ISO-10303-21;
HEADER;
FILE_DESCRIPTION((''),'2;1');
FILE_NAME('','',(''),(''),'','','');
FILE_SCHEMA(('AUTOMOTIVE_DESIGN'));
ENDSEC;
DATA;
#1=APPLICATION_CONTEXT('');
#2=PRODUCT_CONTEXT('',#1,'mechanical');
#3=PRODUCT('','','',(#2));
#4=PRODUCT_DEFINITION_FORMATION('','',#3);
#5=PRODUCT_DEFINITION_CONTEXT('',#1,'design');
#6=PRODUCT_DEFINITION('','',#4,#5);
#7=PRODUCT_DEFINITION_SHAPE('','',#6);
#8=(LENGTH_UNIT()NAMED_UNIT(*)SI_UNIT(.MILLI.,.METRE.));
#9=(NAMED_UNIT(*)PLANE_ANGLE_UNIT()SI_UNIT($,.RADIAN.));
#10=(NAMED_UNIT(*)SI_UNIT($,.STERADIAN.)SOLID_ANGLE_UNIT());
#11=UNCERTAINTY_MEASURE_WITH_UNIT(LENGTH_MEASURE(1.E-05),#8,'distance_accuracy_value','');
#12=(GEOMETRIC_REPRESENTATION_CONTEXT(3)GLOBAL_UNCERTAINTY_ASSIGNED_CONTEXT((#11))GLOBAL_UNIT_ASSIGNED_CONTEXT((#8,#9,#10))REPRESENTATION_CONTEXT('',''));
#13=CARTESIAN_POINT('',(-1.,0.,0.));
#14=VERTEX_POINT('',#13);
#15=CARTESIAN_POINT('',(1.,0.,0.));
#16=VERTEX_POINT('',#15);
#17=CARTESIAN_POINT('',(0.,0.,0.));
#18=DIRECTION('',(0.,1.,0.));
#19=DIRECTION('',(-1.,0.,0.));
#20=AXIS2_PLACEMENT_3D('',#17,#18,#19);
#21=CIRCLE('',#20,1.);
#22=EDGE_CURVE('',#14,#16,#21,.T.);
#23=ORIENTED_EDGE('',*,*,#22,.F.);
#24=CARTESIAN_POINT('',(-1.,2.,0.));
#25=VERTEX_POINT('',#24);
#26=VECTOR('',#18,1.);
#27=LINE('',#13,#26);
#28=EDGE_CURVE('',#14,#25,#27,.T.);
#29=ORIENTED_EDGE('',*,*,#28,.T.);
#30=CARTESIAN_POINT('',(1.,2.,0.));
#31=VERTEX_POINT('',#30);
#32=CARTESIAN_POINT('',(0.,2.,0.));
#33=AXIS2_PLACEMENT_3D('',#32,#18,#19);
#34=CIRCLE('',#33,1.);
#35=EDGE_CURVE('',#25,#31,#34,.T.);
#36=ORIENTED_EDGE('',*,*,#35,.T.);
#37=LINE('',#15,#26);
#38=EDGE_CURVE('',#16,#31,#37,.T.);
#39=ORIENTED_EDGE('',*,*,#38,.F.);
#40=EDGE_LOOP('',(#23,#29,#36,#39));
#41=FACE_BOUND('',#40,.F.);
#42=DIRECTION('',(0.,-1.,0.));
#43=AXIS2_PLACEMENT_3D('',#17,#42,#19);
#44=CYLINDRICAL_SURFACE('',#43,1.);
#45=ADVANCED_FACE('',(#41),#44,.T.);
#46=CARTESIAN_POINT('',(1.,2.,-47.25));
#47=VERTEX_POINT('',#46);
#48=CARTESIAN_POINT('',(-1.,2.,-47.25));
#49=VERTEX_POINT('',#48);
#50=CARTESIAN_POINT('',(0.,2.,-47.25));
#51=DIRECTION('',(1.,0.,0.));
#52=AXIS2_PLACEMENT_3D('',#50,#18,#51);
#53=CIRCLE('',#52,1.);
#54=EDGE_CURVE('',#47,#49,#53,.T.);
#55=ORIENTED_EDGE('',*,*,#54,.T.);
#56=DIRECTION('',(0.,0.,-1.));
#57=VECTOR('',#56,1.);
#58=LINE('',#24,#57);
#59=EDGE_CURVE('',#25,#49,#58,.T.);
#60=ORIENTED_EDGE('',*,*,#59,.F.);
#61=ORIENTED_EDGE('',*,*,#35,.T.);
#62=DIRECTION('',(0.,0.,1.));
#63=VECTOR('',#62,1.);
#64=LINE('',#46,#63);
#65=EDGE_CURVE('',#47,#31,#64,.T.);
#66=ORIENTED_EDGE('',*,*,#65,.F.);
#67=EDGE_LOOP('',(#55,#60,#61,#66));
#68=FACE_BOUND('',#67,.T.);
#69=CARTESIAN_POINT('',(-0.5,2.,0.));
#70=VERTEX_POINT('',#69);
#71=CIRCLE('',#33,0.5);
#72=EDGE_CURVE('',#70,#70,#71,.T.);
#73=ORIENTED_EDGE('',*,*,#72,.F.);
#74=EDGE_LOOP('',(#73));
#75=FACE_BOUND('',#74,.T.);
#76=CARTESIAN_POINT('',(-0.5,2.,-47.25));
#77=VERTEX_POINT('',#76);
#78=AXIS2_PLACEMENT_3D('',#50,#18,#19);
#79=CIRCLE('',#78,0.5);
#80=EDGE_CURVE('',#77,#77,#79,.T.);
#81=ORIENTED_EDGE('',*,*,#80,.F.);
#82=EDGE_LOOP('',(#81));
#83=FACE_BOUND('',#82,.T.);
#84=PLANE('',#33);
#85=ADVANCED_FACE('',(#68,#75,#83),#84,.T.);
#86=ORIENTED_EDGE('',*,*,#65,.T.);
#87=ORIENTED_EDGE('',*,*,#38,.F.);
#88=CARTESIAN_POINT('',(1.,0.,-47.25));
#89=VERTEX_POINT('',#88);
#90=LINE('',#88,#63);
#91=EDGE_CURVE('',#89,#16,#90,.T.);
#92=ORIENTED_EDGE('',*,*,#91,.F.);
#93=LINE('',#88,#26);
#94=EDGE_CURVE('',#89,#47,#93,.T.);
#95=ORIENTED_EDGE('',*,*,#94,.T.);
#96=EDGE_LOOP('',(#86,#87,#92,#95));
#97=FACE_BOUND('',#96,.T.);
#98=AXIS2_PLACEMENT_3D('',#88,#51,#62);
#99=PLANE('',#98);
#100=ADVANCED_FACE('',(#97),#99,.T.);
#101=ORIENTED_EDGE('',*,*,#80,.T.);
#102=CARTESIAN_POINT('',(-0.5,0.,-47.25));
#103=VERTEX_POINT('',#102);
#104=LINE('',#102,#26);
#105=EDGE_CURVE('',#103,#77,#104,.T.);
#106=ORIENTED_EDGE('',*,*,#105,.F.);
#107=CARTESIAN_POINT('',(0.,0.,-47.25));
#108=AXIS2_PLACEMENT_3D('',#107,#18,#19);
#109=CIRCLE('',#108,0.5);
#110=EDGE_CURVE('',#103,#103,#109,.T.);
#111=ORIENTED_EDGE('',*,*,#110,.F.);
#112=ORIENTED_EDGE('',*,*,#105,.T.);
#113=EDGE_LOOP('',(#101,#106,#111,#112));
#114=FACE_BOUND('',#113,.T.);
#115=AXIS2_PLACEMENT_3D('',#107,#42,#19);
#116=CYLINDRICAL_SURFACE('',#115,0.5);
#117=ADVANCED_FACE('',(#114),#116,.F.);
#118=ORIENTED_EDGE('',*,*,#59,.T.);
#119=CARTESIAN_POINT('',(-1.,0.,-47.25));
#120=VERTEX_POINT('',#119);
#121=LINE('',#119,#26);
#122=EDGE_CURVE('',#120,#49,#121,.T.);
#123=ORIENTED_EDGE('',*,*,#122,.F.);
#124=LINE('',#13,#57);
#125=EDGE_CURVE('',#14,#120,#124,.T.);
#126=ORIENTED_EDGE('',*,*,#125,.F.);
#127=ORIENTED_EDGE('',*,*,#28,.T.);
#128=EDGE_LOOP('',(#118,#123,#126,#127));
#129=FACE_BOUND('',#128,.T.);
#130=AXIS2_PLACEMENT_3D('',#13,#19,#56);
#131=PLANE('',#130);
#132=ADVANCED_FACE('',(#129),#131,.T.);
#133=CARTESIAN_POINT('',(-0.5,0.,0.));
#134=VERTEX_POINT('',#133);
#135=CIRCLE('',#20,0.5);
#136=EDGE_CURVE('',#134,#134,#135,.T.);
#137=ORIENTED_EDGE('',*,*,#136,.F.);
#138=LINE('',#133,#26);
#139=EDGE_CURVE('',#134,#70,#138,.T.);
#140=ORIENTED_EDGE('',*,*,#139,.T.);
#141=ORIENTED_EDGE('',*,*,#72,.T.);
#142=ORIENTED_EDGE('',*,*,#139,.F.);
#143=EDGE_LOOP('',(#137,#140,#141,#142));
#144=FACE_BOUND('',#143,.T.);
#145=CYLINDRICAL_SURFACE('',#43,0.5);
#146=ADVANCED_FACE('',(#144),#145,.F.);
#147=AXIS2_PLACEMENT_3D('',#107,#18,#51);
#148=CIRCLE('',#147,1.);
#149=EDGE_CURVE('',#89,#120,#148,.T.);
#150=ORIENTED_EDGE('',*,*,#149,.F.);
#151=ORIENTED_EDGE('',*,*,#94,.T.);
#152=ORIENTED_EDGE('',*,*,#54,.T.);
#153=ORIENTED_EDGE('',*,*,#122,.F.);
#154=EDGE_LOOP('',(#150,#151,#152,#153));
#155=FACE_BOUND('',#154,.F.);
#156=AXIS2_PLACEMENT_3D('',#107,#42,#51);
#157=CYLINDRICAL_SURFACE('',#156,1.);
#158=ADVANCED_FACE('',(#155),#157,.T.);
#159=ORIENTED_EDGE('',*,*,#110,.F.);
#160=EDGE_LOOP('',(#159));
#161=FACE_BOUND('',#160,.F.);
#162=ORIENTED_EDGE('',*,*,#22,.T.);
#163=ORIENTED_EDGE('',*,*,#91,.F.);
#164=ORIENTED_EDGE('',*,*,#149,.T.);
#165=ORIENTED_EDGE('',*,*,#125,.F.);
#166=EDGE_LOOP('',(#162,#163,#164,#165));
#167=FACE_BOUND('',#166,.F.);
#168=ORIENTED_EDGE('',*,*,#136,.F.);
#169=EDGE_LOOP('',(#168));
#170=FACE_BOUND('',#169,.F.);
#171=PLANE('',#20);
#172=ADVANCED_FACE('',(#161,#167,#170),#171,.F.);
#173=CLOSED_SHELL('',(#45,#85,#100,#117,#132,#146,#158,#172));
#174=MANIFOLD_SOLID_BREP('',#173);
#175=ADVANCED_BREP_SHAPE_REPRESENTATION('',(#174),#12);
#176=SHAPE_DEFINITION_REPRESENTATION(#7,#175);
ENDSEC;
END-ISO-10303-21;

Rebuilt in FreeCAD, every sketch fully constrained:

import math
import FreeCAD as App
import Part
import Sketcher

doc = App.newDocument("Part")
body = doc.addObject("PartDesign::Body", "Body")

sketch1 = doc.addObject("Sketcher::SketchObject", "Sketch")
body.addObject(sketch1)
sketch1.AttachmentSupport = (doc.XZ_Plane, [""])
sketch1.MapMode = "FlatFace"
sketch1.addGeometry([
    Part.LineSegment(App.Vector(-1, -47.25, 0), App.Vector(-1, 0, 0)),
    Part.ArcOfCircle(Part.Circle(App.Vector(0, 0, 0), App.Vector(0, 0, 1), 1), math.radians(0), math.radians(180)),
    Part.LineSegment(App.Vector(1, 0, 0), App.Vector(1, -47.25, 0)),
    Part.ArcOfCircle(Part.Circle(App.Vector(0, -47.25, 0), App.Vector(0, 0, 1), 1), math.radians(180), math.radians(360)),
    Part.Circle(App.Vector(0, -47.25, 0), App.Vector(0, 0, 1), 0.5),
    Part.Circle(App.Vector(0, 0, 0), App.Vector(0, 0, 1), 0.5),
], False)
sketch1.addConstraint([
    Sketcher.Constraint("Tangent", 0, 2, 1, 2),
    Sketcher.Constraint("Tangent", 1, 1, 2, 1),
    Sketcher.Constraint("Tangent", 2, 2, 3, 2),
    Sketcher.Constraint("Tangent", 3, 1, 0, 1),
    Sketcher.Constraint("Vertical", 0),
    Sketcher.Constraint("Vertical", 2),
    Sketcher.Constraint("Coincident", 1, 3, -1, 1),
    Sketcher.Constraint("Coincident", 5, 3, -1, 1),
    Sketcher.Constraint("Coincident", 4, 3, 3, 3),
    Sketcher.Constraint("Equal", 4, 5),
    Sketcher.Constraint("Diameter", 4, 1.0),
    Sketcher.Constraint("Radius", 1, 1.0),
    Sketcher.Constraint("DistanceY", 0, 1, 0, 2, 47.25),
])
pad1 = doc.addObject("PartDesign::Pad", "Pad")
body.addObject(pad1)
pad1.Profile = sketch1
pad1.Length = 2
pad1.Reversed = True

doc.recompute()
